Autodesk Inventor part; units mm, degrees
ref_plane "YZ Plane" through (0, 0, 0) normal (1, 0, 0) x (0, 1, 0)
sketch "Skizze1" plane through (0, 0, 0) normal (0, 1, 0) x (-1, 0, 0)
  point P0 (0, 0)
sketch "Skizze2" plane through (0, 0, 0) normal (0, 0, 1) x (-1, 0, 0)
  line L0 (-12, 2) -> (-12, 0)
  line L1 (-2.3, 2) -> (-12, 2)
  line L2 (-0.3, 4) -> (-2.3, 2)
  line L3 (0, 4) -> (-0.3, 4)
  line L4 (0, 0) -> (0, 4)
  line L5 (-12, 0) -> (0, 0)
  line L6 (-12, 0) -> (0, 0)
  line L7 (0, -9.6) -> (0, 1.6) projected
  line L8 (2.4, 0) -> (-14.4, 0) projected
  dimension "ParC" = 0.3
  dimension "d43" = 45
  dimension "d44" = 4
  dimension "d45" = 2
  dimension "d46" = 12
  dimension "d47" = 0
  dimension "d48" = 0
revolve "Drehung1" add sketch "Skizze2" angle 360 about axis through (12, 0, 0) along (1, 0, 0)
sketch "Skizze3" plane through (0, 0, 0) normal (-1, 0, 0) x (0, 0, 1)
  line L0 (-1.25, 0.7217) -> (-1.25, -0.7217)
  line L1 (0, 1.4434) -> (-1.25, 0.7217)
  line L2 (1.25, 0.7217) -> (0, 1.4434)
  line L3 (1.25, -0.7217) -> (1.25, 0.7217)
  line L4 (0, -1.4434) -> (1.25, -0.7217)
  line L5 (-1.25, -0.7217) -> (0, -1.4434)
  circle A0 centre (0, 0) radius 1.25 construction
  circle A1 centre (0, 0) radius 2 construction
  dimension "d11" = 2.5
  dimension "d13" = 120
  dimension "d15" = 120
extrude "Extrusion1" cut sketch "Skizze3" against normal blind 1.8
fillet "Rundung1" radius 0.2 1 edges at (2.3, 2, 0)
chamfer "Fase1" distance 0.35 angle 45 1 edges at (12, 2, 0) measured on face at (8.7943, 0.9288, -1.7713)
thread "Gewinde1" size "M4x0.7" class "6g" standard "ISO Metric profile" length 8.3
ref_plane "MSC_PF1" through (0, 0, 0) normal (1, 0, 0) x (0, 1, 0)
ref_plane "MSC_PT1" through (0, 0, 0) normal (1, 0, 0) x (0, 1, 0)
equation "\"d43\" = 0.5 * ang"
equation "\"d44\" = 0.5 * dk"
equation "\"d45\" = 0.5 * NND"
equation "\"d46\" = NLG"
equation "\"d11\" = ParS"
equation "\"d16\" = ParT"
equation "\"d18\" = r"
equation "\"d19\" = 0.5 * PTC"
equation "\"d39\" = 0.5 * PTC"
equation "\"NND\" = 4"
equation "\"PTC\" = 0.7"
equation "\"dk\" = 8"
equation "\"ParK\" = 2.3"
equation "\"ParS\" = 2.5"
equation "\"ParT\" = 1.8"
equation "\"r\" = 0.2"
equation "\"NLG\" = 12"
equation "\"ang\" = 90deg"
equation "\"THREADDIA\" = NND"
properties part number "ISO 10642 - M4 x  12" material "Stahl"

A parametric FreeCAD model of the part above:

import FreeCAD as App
import Part
import Sketcher
Q = App.Units.Quantity


def edges_at(feature, points):
    """Names of the edges that pass closest to the given points."""
    edges = feature.Shape.Edges
    near = lambda p: min(range(len(edges)), key=lambda i: edges[i].distToShape(Part.Vertex(*p))[0])
    return sorted({f"Edge{near(p) + 1}" for p in points})

doc = App.newDocument("Part")
body = doc.addObject("PartDesign::Body", "Body")

# Sketch on XY plane
sketch1 = body.newObject("Sketcher::SketchObject", "Sketch")
sketch1.AttachmentSupport = (doc.getObject("XY_Plane"), [""])
sketch1.MapMode = "FlatFace"
sketch1.addGeometry([
    Part.LineSegment(App.Vector(2.3, -2, 0), App.Vector(12, -2, 0)),  # 0
    Part.LineSegment(App.Vector(12, -2, 0), App.Vector(12, 0, 0)),  # 1
    Part.LineSegment(App.Vector(12, 0, 0), App.Vector(0, 0, 0)),  # 2
    Part.LineSegment(App.Vector(0, 0, 0), App.Vector(0, -4, 0)),  # 3
    Part.LineSegment(App.Vector(0, -4, 0), App.Vector(0.3, -4, 0)),  # 4
    Part.LineSegment(App.Vector(0.3, -4, 0), App.Vector(2.3, -2, 0)),  # 5
], False)
sketch1.addConstraint([
    Sketcher.Constraint("Coincident", 0, 2, 1, 1),
    Sketcher.Constraint("Coincident", 1, 2, 2, 1),
    Sketcher.Constraint("Coincident", 2, 2, 3, 1),
    Sketcher.Constraint("Coincident", 3, 2, 4, 1),
    Sketcher.Constraint("Coincident", 4, 2, 5, 1),
    Sketcher.Constraint("Coincident", 5, 2, 0, 1),
    Sketcher.Constraint("Horizontal", 0),
    Sketcher.Constraint("Vertical", 1),
    Sketcher.Constraint("Horizontal", 2),
    Sketcher.Constraint("Vertical", 3),
    Sketcher.Constraint("Horizontal", 4),
    Sketcher.Constraint("Coincident", 2, 2, -1, 1),
    Sketcher.Constraint("DistanceX", 2, 2, 2, 1, 12.0),
    Sketcher.Constraint("DistanceY", 1, 1, 1, 2, 2.0),
    Sketcher.Constraint("DistanceY", 3, 2, 3, 1, 4.0),
    Sketcher.Constraint("Angle", 5, Q("45 deg")),
    Sketcher.Constraint("DistanceX", 4, 1, 4, 2, 0.3),
])
revolution = body.newObject("PartDesign::Revolution", "Revolution")
revolution.Profile = sketch1
revolution.ReferenceAxis = (sketch1, ["H_Axis"])
revolution.Angle = 360

# Sketch on YZ plane
sketch2 = body.newObject("Sketcher::SketchObject", "Sketch001")
sketch2.AttachmentSupport = (doc.getObject("YZ_Plane"), [""])
sketch2.MapMode = "FlatFace"
sketch2.addGeometry([
    Part.LineSegment(App.Vector(1.4, 0, 0), App.Vector(0.7, -1.2, 0)),  # 0
    Part.LineSegment(App.Vector(0.7, -1.2, 0), App.Vector(-0.7, -1.2, 0)),  # 1
    Part.LineSegment(App.Vector(-0.7, -1.2, 0), App.Vector(-1.4, 0, 0)),  # 2
    Part.LineSegment(App.Vector(-1.4, 0, 0), App.Vector(-0.7, 1.2, 0)),  # 3
    Part.LineSegment(App.Vector(-0.7, 1.2, 0), App.Vector(0.7, 1.2, 0)),  # 4
    Part.LineSegment(App.Vector(0.7, 1.2, 0), App.Vector(1.4, 0, 0)),  # 5
], False)
sketch2.addConstraint([
    Sketcher.Constraint("Coincident", 0, 2, 1, 1),
    Sketcher.Constraint("Coincident", 1, 2, 2, 1),
    Sketcher.Constraint("Coincident", 2, 2, 3, 1),
    Sketcher.Constraint("Coincident", 3, 2, 4, 1),
    Sketcher.Constraint("Coincident", 4, 2, 5, 1),
    Sketcher.Constraint("Coincident", 5, 2, 0, 1),
    Sketcher.Constraint("Horizontal", 1),
    Sketcher.Constraint("Horizontal", 4),
    Sketcher.Constraint("Symmetric", 0, 2, 3, 2, -1, 1),
    Sketcher.Constraint("Symmetric", 2, 2, 5, 2, -1, 1),
    Sketcher.Constraint("PointOnObject", 2, 2, -1),
    Sketcher.Constraint("Parallel", 2, 5),
    Sketcher.Constraint("Vertical", 1, 2, 3, 2),
    Sketcher.Constraint("Angle", 0, Q("-120.0004 deg")),
    Sketcher.Constraint("DistanceY", 1, 2, 3, 2, 2.5),
    Sketcher.Constraint("DistanceX", 1, 2, 1, 1, 1.4434),
])
pocket1 = body.newObject("PartDesign::Pocket", "Pocket")
pocket1.Profile = sketch2
pocket1.Length = 1.8
pocket1.Reversed = True
doc.recompute()

fillet = body.newObject("PartDesign::Fillet", "Fillet")
fillet.Base = (pocket1, edges_at(pocket1, [(2.3, 2, 0)]))
fillet.Radius = 0.2
doc.recompute()

chamfer = body.newObject("PartDesign::Chamfer", "Chamfer")
chamfer.Base = (fillet, edges_at(fillet, [(12, 2, 0)]))
chamfer.Size = 0.35

doc.recompute()
